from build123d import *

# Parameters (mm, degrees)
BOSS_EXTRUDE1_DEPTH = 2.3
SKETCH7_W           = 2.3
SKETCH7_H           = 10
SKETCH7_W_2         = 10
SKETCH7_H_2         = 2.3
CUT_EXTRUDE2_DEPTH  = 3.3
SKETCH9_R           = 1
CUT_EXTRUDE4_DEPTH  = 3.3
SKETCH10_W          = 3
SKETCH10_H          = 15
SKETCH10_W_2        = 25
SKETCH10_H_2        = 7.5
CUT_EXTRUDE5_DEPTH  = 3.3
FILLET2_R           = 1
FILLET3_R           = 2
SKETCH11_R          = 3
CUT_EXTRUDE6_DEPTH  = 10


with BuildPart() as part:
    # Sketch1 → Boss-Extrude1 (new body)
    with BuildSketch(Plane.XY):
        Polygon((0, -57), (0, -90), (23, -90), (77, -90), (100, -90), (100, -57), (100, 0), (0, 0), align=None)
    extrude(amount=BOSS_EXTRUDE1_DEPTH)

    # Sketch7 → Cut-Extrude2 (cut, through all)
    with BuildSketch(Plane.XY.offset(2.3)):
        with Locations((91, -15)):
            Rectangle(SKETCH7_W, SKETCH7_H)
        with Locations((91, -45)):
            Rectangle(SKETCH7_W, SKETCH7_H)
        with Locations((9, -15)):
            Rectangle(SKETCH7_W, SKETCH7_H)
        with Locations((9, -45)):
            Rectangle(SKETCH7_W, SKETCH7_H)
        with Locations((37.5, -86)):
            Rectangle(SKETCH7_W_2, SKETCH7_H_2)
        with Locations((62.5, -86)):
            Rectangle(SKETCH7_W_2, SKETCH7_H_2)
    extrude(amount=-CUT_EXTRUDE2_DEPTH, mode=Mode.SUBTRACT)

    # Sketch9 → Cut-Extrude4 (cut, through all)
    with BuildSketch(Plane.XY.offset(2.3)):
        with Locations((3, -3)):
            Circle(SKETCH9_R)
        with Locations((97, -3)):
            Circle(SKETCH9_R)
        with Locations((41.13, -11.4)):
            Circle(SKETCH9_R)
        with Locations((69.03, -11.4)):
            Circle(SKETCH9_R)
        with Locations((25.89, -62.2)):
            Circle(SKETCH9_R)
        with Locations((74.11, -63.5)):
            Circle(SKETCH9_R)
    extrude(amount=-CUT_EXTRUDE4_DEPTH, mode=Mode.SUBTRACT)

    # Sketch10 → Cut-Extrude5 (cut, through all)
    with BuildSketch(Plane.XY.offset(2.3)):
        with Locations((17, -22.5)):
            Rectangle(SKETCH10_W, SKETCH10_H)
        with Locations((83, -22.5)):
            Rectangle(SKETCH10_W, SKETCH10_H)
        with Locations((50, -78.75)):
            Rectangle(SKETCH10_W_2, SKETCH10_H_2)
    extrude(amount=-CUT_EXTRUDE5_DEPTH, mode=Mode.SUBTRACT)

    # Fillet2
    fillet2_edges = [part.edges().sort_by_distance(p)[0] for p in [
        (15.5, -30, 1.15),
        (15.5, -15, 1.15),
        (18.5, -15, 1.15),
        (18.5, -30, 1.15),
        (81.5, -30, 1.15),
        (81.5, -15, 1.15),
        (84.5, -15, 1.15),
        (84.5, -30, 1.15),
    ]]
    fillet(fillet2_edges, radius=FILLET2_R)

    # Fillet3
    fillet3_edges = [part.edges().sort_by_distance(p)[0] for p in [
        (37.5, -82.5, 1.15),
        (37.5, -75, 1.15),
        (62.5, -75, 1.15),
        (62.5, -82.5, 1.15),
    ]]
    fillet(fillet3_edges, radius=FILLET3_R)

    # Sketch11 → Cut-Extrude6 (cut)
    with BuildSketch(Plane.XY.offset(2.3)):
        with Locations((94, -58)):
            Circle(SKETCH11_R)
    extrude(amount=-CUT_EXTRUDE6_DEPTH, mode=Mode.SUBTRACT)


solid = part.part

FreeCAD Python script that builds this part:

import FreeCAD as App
import Part
import Sketcher


def edges_at(feature, points):
    """Names of the edges that pass closest to the given points."""
    edges = feature.Shape.Edges
    near = lambda p: min(range(len(edges)), key=lambda i: edges[i].distToShape(Part.Vertex(*p))[0])
    return sorted({f"Edge{near(p) + 1}" for p in points})

doc = App.newDocument("Part")
body = doc.addObject("PartDesign::Body", "Body")

sketch1 = body.newObject("Sketcher::SketchObject", "Sketch")
sketch1.AttachmentSupport = (doc.getObject("XY_Plane"), [""])
sketch1.MapMode = "FlatFace"
sketch1.addGeometry([
    Part.LineSegment(App.Vector(0, -90, 0), App.Vector(100, -90, 0)),
    Part.LineSegment(App.Vector(100, -90, 0), App.Vector(100, 0, 0)),
    Part.LineSegment(App.Vector(100, 0, 0), App.Vector(0, 0, 0)),
    Part.LineSegment(App.Vector(0, 0, 0), App.Vector(0, -90, 0)),
], False)
sketch1.addConstraint([
    Sketcher.Constraint("Coincident", 0, 2, 1, 1),
    Sketcher.Constraint("Coincident", 1, 2, 2, 1),
    Sketcher.Constraint("Coincident", 2, 2, 3, 1),
    Sketcher.Constraint("Coincident", 3, 2, 0, 1),
    Sketcher.Constraint("Horizontal", 0),
    Sketcher.Constraint("Vertical", 1),
    Sketcher.Constraint("Horizontal", 2),
    Sketcher.Constraint("Vertical", 3),
    Sketcher.Constraint("Coincident", 2, 2, -1, 1),
    Sketcher.Constraint("DistanceX", 0, 1, 0, 2, 100.0),
    Sketcher.Constraint("DistanceY", 1, 1, 1, 2, 90.0),
])
pad1 = body.newObject("PartDesign::Pad", "Pad")
pad1.Profile = sketch1
pad1.Length = 2.3

sketch2 = body.newObject("Sketcher::SketchObject", "Sketch001")
sketch2.AttachmentSupport = (doc.getObject("XY_Plane"), [""])
sketch2.MapMode = "FlatFace"
sketch2.AttachmentOffset = App.Placement(App.Vector(0, 0, 2.3), App.Rotation())
sketch2.addGeometry([
    Part.LineSegment(App.Vector(89.8, -10, 0), App.Vector(89.8, -20, 0)),
    Part.LineSegment(App.Vector(89.8, -20, 0), App.Vector(92.2, -20, 0)),
    Part.LineSegment(App.Vector(92.2, -20, 0), App.Vector(92.2, -10, 0)),
    Part.LineSegment(App.Vector(92.2, -10, 0), App.Vector(89.8, -10, 0)),
    Part.LineSegment(App.Vector(89.8, -40, 0), App.Vector(89.8, -50, 0)),
    Part.LineSegment(App.Vector(89.8, -50, 0), App.Vector(92.2, -50, 0)),
    Part.LineSegment(App.Vector(92.2, -50, 0), App.Vector(92.2, -40, 0)),
    Part.LineSegment(App.Vector(92.2, -40, 0), App.Vector(89.8, -40, 0)),
    Part.LineSegment(App.Vector(7.8, -10, 0), App.Vector(7.8, -20, 0)),
    Part.LineSegment(App.Vector(7.8, -20, 0), App.Vector(10.2, -20, 0)),
    Part.LineSegment(App.Vector(10.2, -20, 0), App.Vector(10.2, -10, 0)),
    Part.LineSegment(App.Vector(10.2, -10, 0), App.Vector(7.8, -10, 0)),
    Part.LineSegment(App.Vector(7.8, -40, 0), App.Vector(7.8, -50, 0)),
    Part.LineSegment(App.Vector(7.8, -50, 0), App.Vector(10.2, -50, 0)),
    Part.LineSegment(App.Vector(10.2, -50, 0), App.Vector(10.2, -40, 0)),
    Part.LineSegment(App.Vector(10.2, -40, 0), App.Vector(7.8, -40, 0)),
    Part.LineSegment(App.Vector(32.5, -84.8, 0), App.Vector(32.5, -87.2, 0)),
    Part.LineSegment(App.Vector(32.5, -87.2, 0), App.Vector(42.5, -87.2, 0)),
    Part.LineSegment(App.Vector(42.5, -87.2, 0), App.Vector(42.5, -84.8, 0)),
    Part.LineSegment(App.Vector(42.5, -84.8, 0), App.Vector(32.5, -84.8, 0)),
    Part.LineSegment(App.Vector(57.5, -84.8, 0), App.Vector(57.5, -87.2, 0)),
    Part.LineSegment(App.Vector(57.5, -87.2, 0), App.Vector(67.5, -87.2, 0)),
    Part.LineSegment(App.Vector(67.5, -87.2, 0), App.Vector(67.5, -84.8, 0)),
    Part.LineSegment(App.Vector(67.5, -84.8, 0), App.Vector(57.5, -84.8, 0)),
], False)
sketch2.addConstraint([
    Sketcher.Constraint("Coincident", 0, 2, 1, 1),
    Sketcher.Constraint("Coincident", 1, 2, 2, 1),
    Sketcher.Constraint("Coincident", 2, 2, 3, 1),
    Sketcher.Constraint("Coincident", 3, 2, 0, 1),
    Sketcher.Constraint("Coincident", 4, 2, 5, 1),
    Sketcher.Constraint("Coincident", 5, 2, 6, 1),
    Sketcher.Constraint("Coincident", 6, 2, 7, 1),
    Sketcher.Constraint("Coincident", 7, 2, 4, 1),
    Sketcher.Constraint("Coincident", 8, 2, 9, 1),
    Sketcher.Constraint("Coincident", 9, 2, 10, 1),
    Sketcher.Constraint("Coincident", 10, 2, 11, 1),
    Sketcher.Constraint("Coincident", 11, 2, 8, 1),
    Sketcher.Constraint("Coincident", 12, 2, 13, 1),
    Sketcher.Constraint("Coincident", 13, 2, 14, 1),
    Sketcher.Constraint("Coincident", 14, 2, 15, 1),
    Sketcher.Constraint("Coincident", 15, 2, 12, 1),
    Sketcher.Constraint("Coincident", 16, 2, 17, 1),
    Sketcher.Constraint("Coincident", 17, 2, 18, 1),
    Sketcher.Constraint("Coincident", 18, 2, 19, 1),
    Sketcher.Constraint("Coincident", 19, 2, 16, 1),
    Sketcher.Constraint("Coincident", 20, 2, 21, 1),
    Sketcher.Constraint("Coincident", 21, 2, 22, 1),
    Sketcher.Constraint("Coincident", 22, 2, 23, 1),
    Sketcher.Constraint("Coincident", 23, 2, 20, 1),
    Sketcher.Constraint("Vertical", 0),
    Sketcher.Constraint("Horizontal", 1),
    Sketcher.Constraint("Vertical", 2),
    Sketcher.Constraint("Horizontal", 3),
    Sketcher.Constraint("Vertical", 4),
    Sketcher.Constraint("Horizontal", 5),
    Sketcher.Constraint("Vertical", 6),
    Sketcher.Constraint("Horizontal", 7),
    Sketcher.Constraint("Vertical", 8),
    Sketcher.Constraint("Horizontal", 9),
    Sketcher.Constraint("Vertical", 10),
    Sketcher.Constraint("Horizontal", 11),
    Sketcher.Constraint("Vertical", 12),
    Sketcher.Constraint("Horizontal", 13),
    Sketcher.Constraint("Vertical", 14),
    Sketcher.Constraint("Horizontal", 15),
    Sketcher.Constraint("Vertical", 16),
    Sketcher.Constraint("Horizontal", 17),
    Sketcher.Constraint("Vertical", 18),
    Sketcher.Constraint("Horizontal", 19),
    Sketcher.Constraint("Vertical", 20),
    Sketcher.Constraint("Horizontal", 21),
    Sketcher.Constraint("Vertical", 22),
    Sketcher.Constraint("Horizontal", 23),
    Sketcher.Constraint("Horizontal", 1, 2, 8, 2),
    Sketcher.Constraint("Horizontal", 3, 2, 10, 2),
    Sketcher.Constraint("Horizontal", 5, 2, 12, 2),
    Sketcher.Constraint("Horizontal", 7, 2, 14, 2),
    Sketcher.Constraint("Horizontal", 17, 2, 20, 2),
    Sketcher.Constraint("Horizontal", 19, 2, 22, 2),
    Sketcher.Constraint("Vertical", 3, 2, 4, 2),
    Sketcher.Constraint("Vertical", 2, 2, 5, 2),
    Sketcher.Constraint("Vertical", 11, 2, 12, 2),
    Sketcher.Constraint("Vertical", 10, 2, 13, 2),
    Sketcher.Constraint("Equal", 7, 9),
    Sketcher.Constraint("Equal", 19, 21),
    Sketcher.Constraint("Equal", 23, 0),
    Sketcher.Constraint("Equal", 2, 4),
    Sketcher.Constraint("Equal", 15, 16),
    Sketcher.Constraint("DistanceX", 17, 1, 17, 2, 10.0),
    Sketcher.Constraint("DistanceX", 1, 1, 1, 2, 2.3),
    Sketcher.Constraint("DistanceY", 0, 2, -1, 1, 20.0),
    Sketcher.Constraint("DistanceY", 4, 2, -1, 1, 50.0),
    Sketcher.Constraint("DistanceX", 8, 2, 0, 2, 82.0),
    Sketcher.Constraint("DistanceX", 17, 2, 20, 2, 15.0),
    Sketcher.Constraint("DistanceX", -1, 1, 16, 2, 32.5),
    Sketcher.Constraint("DistanceX", -1, 1, 0, 2, 89.85),
    Sketcher.Constraint("DistanceY", 16, 2, -1, 1, 87.15),
])
pocket1 = body.newObject("PartDesign::Pocket", "Pocket")
pocket1.Profile = sketch2
pocket1.Type = "ThroughAll"

sketch3 = body.newObject("Sketcher::SketchObject", "Sketch002")
sketch3.AttachmentSupport = (doc.getObject("XY_Plane"), [""])
sketch3.MapMode = "FlatFace"
sketch3.AttachmentOffset = App.Placement(App.Vector(0, 0, 2.3), App.Rotation())
sketch3.addGeometry([
    Part.Circle(App.Vector(3, -3, 0), App.Vector(0, 0, 1), 1),
    Part.Circle(App.Vector(97, -3, 0), App.Vector(0, 0, 1), 1),
    Part.Circle(App.Vector(41.1, -11.4, 0), App.Vector(0, 0, 1), 1),
    Part.Circle(App.Vector(69, -11.4, 0), App.Vector(0, 0, 1), 1),
    Part.Circle(App.Vector(25.9, -62.2, 0), App.Vector(0, 0, 1), 1),
    Part.Circle(App.Vector(74.1, -63.5, 0), App.Vector(0, 0, 1), 1),
], False)
sketch3.addConstraint([
    Sketcher.Constraint("Equal", 0, 1),
    Sketcher.Constraint("Equal", 1, 2),
    Sketcher.Constraint("Equal", 2, 3),
    Sketcher.Constraint("Equal", 3, 4),
    Sketcher.Constraint("Equal", 4, 5),
    Sketcher.Constraint("Horizontal", 0, 3, 1, 3),
    Sketcher.Constraint("Horizontal", 2, 3, 3, 3),
    Sketcher.Constraint("Diameter", 0, 2.0),
    Sketcher.Constraint("DistanceX", -1, 1, 0, 3, 3.0),
    Sketcher.Constraint("DistanceY", 0, 3, -1, 1, 3.0),
    Sketcher.Constraint("DistanceX", -1, 1, 1, 3, 97.0),
    Sketcher.Constraint("DistanceY", 2, 3, -1, 1, 11.4),
    Sketcher.Constraint("DistanceY", 4, 3, -1, 1, 62.2),
    Sketcher.Constraint("DistanceY", 5, 3, -1, 1, 63.5),
    Sketcher.Constraint("DistanceX", 2, 3, 3, 3, 27.9),
    Sketcher.Constraint("DistanceX", -1, 1, 2, 3, 41.13),
    Sketcher.Constraint("DistanceX", -1, 1, 4, 3, 25.89),
    Sketcher.Constraint("DistanceX", -1, 1, 5, 3, 74.11),
])
pocket2 = body.newObject("PartDesign::Pocket", "Pocket001")
pocket2.Profile = sketch3
pocket2.Type = "ThroughAll"

sketch4 = body.newObject("Sketcher::SketchObject", "Sketch003")
sketch4.AttachmentSupport = (doc.getObject("XY_Plane"), [""])
sketch4.MapMode = "FlatFace"
sketch4.AttachmentOffset = App.Placement(App.Vector(0, 0, 2.3), App.Rotation())
sketch4.addGeometry([
    Part.LineSegment(App.Vector(15.5, -15, 0), App.Vector(15.5, -30, 0)),
    Part.LineSegment(App.Vector(15.5, -30, 0), App.Vector(18.5, -30, 0)),
    Part.LineSegment(App.Vector(18.5, -30, 0), App.Vector(18.5, -15, 0)),
    Part.LineSegment(App.Vector(18.5, -15, 0), App.Vector(15.5, -15, 0)),
    Part.LineSegment(App.Vector(81.5, -15, 0), App.Vector(81.5, -30, 0)),
    Part.LineSegment(App.Vector(81.5, -30, 0), App.Vector(84.5, -30, 0)),
    Part.LineSegment(App.Vector(84.5, -30, 0), App.Vector(84.5, -15, 0)),
    Part.LineSegment(App.Vector(84.5, -15, 0), App.Vector(81.5, -15, 0)),
    Part.LineSegment(App.Vector(37.5, -75, 0), App.Vector(37.5, -82.5, 0)),
    Part.LineSegment(App.Vector(37.5, -82.5, 0), App.Vector(62.5, -82.5, 0)),
    Part.LineSegment(App.Vector(62.5, -82.5, 0), App.Vector(62.5, -75, 0)),
    Part.LineSegment(App.Vector(62.5, -75, 0), App.Vector(37.5, -75, 0)),
], False)
sketch4.addConstraint([
    Sketcher.Constraint("Coincident", 0, 2, 1, 1),
    Sketcher.Constraint("Coincident", 1, 2, 2, 1),
    Sketcher.Constraint("Coincident", 2, 2, 3, 1),
    Sketcher.Constraint("Coincident", 3, 2, 0, 1),
    Sketcher.Constraint("Coincident", 4, 2, 5, 1),
    Sketcher.Constraint("Coincident", 5, 2, 6, 1),
    Sketcher.Constraint("Coincident", 6, 2, 7, 1),
    Sketcher.Constraint("Coincident", 7, 2, 4, 1),
    Sketcher.Constraint("Coincident", 8, 2, 9, 1),
    Sketcher.Constraint("Coincident", 9, 2, 10, 1),
    Sketcher.Constraint("Coincident", 10, 2, 11, 1),
    Sketcher.Constraint("Coincident", 11, 2, 8, 1),
    Sketcher.Constraint("Vertical", 0),
    Sketcher.Constraint("Horizontal", 1),
    Sketcher.Constraint("Vertical", 2),
    Sketcher.Constraint("Horizontal", 3),
    Sketcher.Constraint("Vertical", 4),
    Sketcher.Constraint("Horizontal", 5),
    Sketcher.Constraint("Vertical", 6),
    Sketcher.Constraint("Horizontal", 7),
    Sketcher.Constraint("Vertical", 8),
    Sketcher.Constraint("Horizontal", 9),
    Sketcher.Constraint("Vertical", 10),
    Sketcher.Constraint("Horizontal", 11),
    Sketcher.Constraint("Horizontal", 1, 2, 4, 2),
    Sketcher.Constraint("Horizontal", 3, 2, 6, 2),
    Sketcher.Constraint("Equal", 3, 5),
    Sketcher.Constraint("DistanceX", 1, 1, 1, 2, 3.0),
    Sketcher.Constraint("DistanceX", 9, 1, 9, 2, 25.0),
    Sketcher.Constraint("DistanceY", 0, 2, 0, 1, 15.0),
    Sketcher.Constraint("DistanceY", 8, 2, 8, 1, 7.5),
    Sketcher.Constraint("DistanceY", 0, 2, -1, 1, 30.0),
    Sketcher.Constraint("DistanceY", 10, 2, -1, 1, 75.0),
    Sketcher.Constraint("DistanceX", 1, 2, 4, 2, 63.0),
    Sketcher.Constraint("DistanceX", 1, 2, 8, 2, 19.0),
    Sketcher.Constraint("DistanceX", -1, 1, 0, 2, 15.5),
])
pocket3 = body.newObject("PartDesign::Pocket", "Pocket002")
pocket3.Profile = sketch4
pocket3.Type = "ThroughAll"
doc.recompute()

fillet = body.newObject("PartDesign::Fillet", "Fillet")
fillet.Base = (pocket3, edges_at(pocket3, [
    (15.5, -30, 1.15),
    (15.5, -15, 1.15),
    (18.5, -15, 1.15),
    (18.5, -30, 1.15),
    (81.5, -30, 1.15),
    (81.5, -15, 1.15),
    (84.5, -15, 1.15),
    (84.5, -30, 1.15),
]))
fillet.Radius = 1
doc.recompute()

fillet2 = body.newObject("PartDesign::Fillet", "Fillet001")
fillet2.Base = (fillet, edges_at(fillet, [
    (37.5, -82.5, 1.15),
    (37.5, -75, 1.15),
    (62.5, -75, 1.15),
    (62.5, -82.5, 1.15),
]))
fillet2.Radius = 2

sketch5 = body.newObject("Sketcher::SketchObject", "Sketch004")
sketch5.AttachmentSupport = (doc.getObject("XY_Plane"), [""])
sketch5.MapMode = "FlatFace"
sketch5.AttachmentOffset = App.Placement(App.Vector(0, 0, 2.3), App.Rotation())
sketch5.addGeometry(Part.Circle(App.Vector(94, -58, 0), App.Vector(0, 0, 1), 3), False)
sketch5.addConstraint([
    Sketcher.Constraint("Diameter", 0, 6.0),
    Sketcher.Constraint("DistanceX", -1, 1, 0, 3, 94.0),
    Sketcher.Constraint("DistanceY", 0, 3, -1, 1, 58.0),
])
pocket4 = body.newObject("PartDesign::Pocket", "Pocket003")
pocket4.Profile = sketch5
pocket4.Length = 10

doc.recompute()
